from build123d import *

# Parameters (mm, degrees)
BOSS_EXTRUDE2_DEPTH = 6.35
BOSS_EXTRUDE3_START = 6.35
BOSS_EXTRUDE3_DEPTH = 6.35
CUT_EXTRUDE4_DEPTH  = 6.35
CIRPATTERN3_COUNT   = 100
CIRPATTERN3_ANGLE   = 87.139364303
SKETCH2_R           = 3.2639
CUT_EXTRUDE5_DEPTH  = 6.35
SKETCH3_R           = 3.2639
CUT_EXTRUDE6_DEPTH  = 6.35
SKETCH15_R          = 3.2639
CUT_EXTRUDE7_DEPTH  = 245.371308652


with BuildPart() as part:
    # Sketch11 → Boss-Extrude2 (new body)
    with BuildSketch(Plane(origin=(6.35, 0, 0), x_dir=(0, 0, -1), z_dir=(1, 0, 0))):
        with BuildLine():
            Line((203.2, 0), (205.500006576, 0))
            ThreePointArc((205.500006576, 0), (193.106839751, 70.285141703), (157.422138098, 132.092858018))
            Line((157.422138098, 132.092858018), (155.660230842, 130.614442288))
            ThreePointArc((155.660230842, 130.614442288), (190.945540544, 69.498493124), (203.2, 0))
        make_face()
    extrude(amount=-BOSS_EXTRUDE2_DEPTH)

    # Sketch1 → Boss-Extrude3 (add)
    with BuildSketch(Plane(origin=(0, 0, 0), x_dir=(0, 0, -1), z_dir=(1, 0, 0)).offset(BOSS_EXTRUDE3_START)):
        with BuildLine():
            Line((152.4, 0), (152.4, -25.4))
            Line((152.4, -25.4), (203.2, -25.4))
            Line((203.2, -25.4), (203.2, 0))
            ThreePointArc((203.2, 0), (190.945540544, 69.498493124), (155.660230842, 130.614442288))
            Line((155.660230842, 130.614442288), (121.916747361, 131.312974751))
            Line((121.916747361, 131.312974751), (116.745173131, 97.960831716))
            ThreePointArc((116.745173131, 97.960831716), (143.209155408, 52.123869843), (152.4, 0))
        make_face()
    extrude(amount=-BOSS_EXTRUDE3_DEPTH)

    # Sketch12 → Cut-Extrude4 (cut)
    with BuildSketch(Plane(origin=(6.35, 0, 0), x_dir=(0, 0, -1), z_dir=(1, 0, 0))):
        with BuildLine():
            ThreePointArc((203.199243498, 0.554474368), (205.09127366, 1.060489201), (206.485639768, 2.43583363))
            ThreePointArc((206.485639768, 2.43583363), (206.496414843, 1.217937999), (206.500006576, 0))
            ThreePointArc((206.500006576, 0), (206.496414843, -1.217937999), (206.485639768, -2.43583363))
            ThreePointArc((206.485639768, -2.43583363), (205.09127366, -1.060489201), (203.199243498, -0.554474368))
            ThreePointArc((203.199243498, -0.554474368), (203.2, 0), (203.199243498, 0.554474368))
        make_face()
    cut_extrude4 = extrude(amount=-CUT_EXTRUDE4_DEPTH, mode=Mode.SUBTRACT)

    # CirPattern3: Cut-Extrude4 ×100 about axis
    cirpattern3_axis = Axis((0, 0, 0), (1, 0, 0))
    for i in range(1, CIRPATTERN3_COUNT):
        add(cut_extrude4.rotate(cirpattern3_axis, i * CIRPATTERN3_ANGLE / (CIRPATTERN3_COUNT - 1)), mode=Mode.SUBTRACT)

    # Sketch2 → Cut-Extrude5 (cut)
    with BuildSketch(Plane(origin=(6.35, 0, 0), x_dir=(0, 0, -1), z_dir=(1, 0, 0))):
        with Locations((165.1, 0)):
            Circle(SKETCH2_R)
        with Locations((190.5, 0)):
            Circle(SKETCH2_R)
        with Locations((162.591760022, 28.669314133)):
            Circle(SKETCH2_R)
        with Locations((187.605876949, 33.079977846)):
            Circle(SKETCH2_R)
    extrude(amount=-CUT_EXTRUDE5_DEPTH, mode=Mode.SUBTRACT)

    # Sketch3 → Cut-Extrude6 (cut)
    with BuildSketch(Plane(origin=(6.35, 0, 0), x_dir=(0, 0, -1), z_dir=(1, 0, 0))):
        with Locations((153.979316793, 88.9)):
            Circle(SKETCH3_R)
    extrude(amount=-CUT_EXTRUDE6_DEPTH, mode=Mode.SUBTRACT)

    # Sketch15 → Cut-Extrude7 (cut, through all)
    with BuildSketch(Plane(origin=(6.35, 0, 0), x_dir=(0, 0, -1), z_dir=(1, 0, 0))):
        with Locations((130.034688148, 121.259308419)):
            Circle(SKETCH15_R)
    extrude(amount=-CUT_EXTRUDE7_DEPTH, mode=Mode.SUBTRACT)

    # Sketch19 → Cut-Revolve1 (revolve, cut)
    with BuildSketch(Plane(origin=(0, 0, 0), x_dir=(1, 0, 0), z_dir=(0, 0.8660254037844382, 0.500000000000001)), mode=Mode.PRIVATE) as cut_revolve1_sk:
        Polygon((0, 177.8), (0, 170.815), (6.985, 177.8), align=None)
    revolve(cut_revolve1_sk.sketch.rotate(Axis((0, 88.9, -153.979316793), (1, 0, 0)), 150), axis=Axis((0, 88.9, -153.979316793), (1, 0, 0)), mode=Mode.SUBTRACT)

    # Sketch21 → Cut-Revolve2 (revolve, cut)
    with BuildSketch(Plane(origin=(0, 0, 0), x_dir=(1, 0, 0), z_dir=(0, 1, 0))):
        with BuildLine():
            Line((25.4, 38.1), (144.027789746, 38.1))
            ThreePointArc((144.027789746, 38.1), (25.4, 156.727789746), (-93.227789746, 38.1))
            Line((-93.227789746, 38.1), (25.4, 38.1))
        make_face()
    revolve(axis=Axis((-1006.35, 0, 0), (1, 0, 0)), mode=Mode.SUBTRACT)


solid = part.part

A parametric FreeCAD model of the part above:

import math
import FreeCAD as App
import Part
import Sketcher
from FreeCAD import Vector
Q = App.Units.Quantity

doc = App.newDocument("Part")
body = doc.addObject("PartDesign::Body", "Body")

sketch1 = body.newObject("Sketcher::SketchObject", "Sketch")
sketch1.AttachmentSupport = (doc.getObject("YZ_Plane"), [""])
sketch1.MapMode = "FlatFace"
sketch1.AttachmentOffset = App.Placement(Vector(0, 0, 0.25 * 25.4), App.Rotation())
sketch1.addGeometry([
    Part.LineSegment(Vector(0, -203.2, 0), Vector(0, -205.5, 0)),
    Part.ArcOfCircle(Part.Circle(Vector(0, 0, 0), Vector(0, 0, 1), 205.5), math.radians(-90), math.radians(-50)),
    Part.LineSegment(Vector(132.1, -157.4, 0), Vector(130.6, -155.7, 0)),
    Part.ArcOfCircle(Part.Circle(Vector(0, 0, 0), Vector(0, 0, 1), 203.2), math.radians(-90), math.radians(-50)),
], False)
sketch1.addConstraint([
    Sketcher.Constraint("Coincident", 0, 2, 1, 1),
    Sketcher.Constraint("Coincident", 1, 2, 2, 1),
    Sketcher.Constraint("Coincident", 2, 2, 3, 2),
    Sketcher.Constraint("Coincident", 3, 1, 0, 1),
    Sketcher.Constraint("Vertical", 0),
    Sketcher.Constraint("Coincident", 1, 3, -1, 1),
    Sketcher.Constraint("Coincident", 3, 3, -1, 1),
    Sketcher.Constraint("PointOnObject", 0, 2, -2),
    Sketcher.Constraint("Radius", 3, Q("8 in")),
    Sketcher.Constraint("Angle", 2, Q("130 deg")),
    Sketcher.Constraint("Radius", 1, 205.500007),
    Sketcher.Constraint("DistanceX", -1, 1, 1, 2, 132.092858),
])
pad1 = body.newObject("PartDesign::Pad", "Pad")
pad1.Profile = sketch1
pad1.Length = Q("0.25 in")
pad1.Reversed = True

sketch2 = body.newObject("Sketcher::SketchObject", "Sketch001")
sketch2.AttachmentSupport = (doc.getObject("YZ_Plane"), [""])
sketch2.MapMode = "FlatFace"
sketch2.AttachmentOffset = App.Placement(Vector(0, 0, 0.25 * 25.4), App.Rotation())
sketch2.addGeometry([
    Part.LineSegment(Vector(0, -152, 0), Vector(-25, -152, 0)),
    Part.LineSegment(Vector(-25, -152, 0), Vector(-25, -203, 0)),
    Part.LineSegment(Vector(-25, -203, 0), Vector(0, -203, 0)),
    Part.ArcOfCircle(Part.Circle(Vector(0, 0, 0), Vector(0, 0, 1), 203), math.radians(-90), math.radians(-50)),
    Part.LineSegment(Vector(131, -156, 0), Vector(131, -122, 0)),
    Part.LineSegment(Vector(131, -122, 0), Vector(98, -117, 0)),
    Part.ArcOfCircle(Part.Circle(Vector(0, 0, 0), Vector(0, 0, 1), 152), math.radians(-90), math.radians(-50)),
], False)
sketch2.addConstraint([
    Sketcher.Constraint("Coincident", 0, 2, 1, 1),
    Sketcher.Constraint("Coincident", 1, 2, 2, 1),
    Sketcher.Constraint("Tangent", 2, 2, 3, 1),
    Sketcher.Constraint("Coincident", 3, 2, 4, 1),
    Sketcher.Constraint("Coincident", 4, 2, 5, 1),
    Sketcher.Constraint("Coincident", 5, 2, 6, 2),
    Sketcher.Constraint("Tangent", 6, 1, 0, 1),
    Sketcher.Constraint("Horizontal", 0),
    Sketcher.Constraint("Vertical", 1),
    Sketcher.Constraint("Horizontal", 2),
    Sketcher.Constraint("Coincident", 3, 3, -1, 1),
    Sketcher.Constraint("Coincident", 6, 3, -1, 1),
    Sketcher.Constraint("Equal", 4, 5),
    Sketcher.Constraint("Radius", 3, Q("8 in")),
    Sketcher.Constraint("Radius", 6, Q("6 in")),
    Sketcher.Constraint("DistanceX", 0, 2, 0, 1, Q("1 in")),
    Sketcher.Constraint("DistanceY", 3, 2, -1, 1, 155.660231),
    Sketcher.Constraint("DistanceX", -1, 1, 5, 2, 97.960832),
    Sketcher.Constraint("Distance", 4, 33.750713),
])
pad2 = body.newObject("PartDesign::Pad", "Pad001")
pad2.Profile = sketch2
pad2.Length = Q("0.25 in")
pad2.Reversed = True

sketch3 = body.newObject("Sketcher::SketchObject", "Sketch002")
sketch3.AttachmentSupport = (doc.getObject("YZ_Plane"), [""])
sketch3.MapMode = "FlatFace"
sketch3.AttachmentOffset = App.Placement(Vector(0, 0, 0.25 * 25.4), App.Rotation())
sketch3.addGeometry([
    Part.ArcOfCircle(Part.Circle(Vector(4.4, -203.2, 0), Vector(0, 0, 1), 3.8), math.radians(-180), math.radians(-121)),
    Part.ArcOfCircle(Part.Circle(Vector(0, 0, 0), Vector(0, 0, 1), 203.2), math.radians(-90.16), math.radians(-89.84)),
    Part.ArcOfCircle(Part.Circle(Vector(-4.4, -203.2, 0), Vector(0, 0, 1), 3.8), math.radians(-59), math.radians(0)),
    Part.ArcOfCircle(Part.Circle(Vector(0, 0, 0), Vector(0, 0, 1), 206.5), math.radians(-90.68), math.radians(-90)),
    Part.ArcOfCircle(Part.Circle(Vector(0, 0, 0), Vector(0, 0, 1), 206.5), math.radians(-90), math.radians(-89.32)),
], False)
sketch3.addConstraint([
    Sketcher.Constraint("Coincident", 0, 1, 1, 2),
    Sketcher.Constraint("Coincident", 1, 1, 2, 2),
    Sketcher.Constraint("Coincident", 2, 1, 3, 1),
    Sketcher.Constraint("Tangent", 3, 2, 4, 1),
    Sketcher.Constraint("Coincident", 4, 2, 0, 2),
    Sketcher.Constraint("Coincident", 3, 3, 1, 3),
    Sketcher.Constraint("Equal", 0, 2),
    Sketcher.Constraint("Equal", 3, 4),
    Sketcher.Constraint("Symmetric", 0, 3, 2, 3, -2),
    Sketcher.Constraint("PointOnObject", 1, 3, -2),
    Sketcher.Constraint("PointOnObject", 3, 2, -2),
    Sketcher.Constraint("Radius", 0, 3.829318),
    Sketcher.Constraint("Radius", 1, 203.19999),
    Sketcher.Constraint("Radius", 3, 206.499993),
    Sketcher.Constraint("DistanceX", -1, 1, 0, 3, 4.383778),
    Sketcher.Constraint("DistanceY", 2, 1, -1, 1, 206.48564),
    Sketcher.Constraint("DistanceY", 2, 3, 3, 3, 203.18878),
])
pocket1 = body.newObject("PartDesign::Pocket", "Pocket")
pocket1.Profile = sketch3
pocket1.Length = Q("0.25 in")
doc.recompute()

polarpattern = body.newObject("PartDesign::PolarPattern", "PolarPattern")
polarpattern.Originals = [pocket1]
polarpattern.Axis = (doc.getObject("X_Axis"), [""])
polarpattern.Angle = 87.139364
polarpattern.Occurrences = 100
body.Tip = polarpattern

sketch4 = body.newObject("Sketcher::SketchObject", "Sketch003")
sketch4.AttachmentSupport = (doc.getObject("YZ_Plane"), [""])
sketch4.MapMode = "FlatFace"
sketch4.AttachmentOffset = App.Placement(Vector(0, 0, 0.25 * 25.4), App.Rotation())
sketch4.addGeometry([
    Part.Circle(Vector(0, -165.1, 0), Vector(0, 0, 1), 3.3),
    Part.Circle(Vector(0, -190.5, 0), Vector(0, 0, 1), 3.3),
    Part.Circle(Vector(28.7, -162.6, 0), Vector(0, 0, 1), 3.3),
    Part.Circle(Vector(33.1, -187.6, 0), Vector(0, 0, 1), 3.3),
], False)
sketch4.addConstraint([
    Sketcher.Constraint("Equal", 0, 1),
    Sketcher.Constraint("Equal", 1, 2),
    Sketcher.Constraint("Equal", 2, 3),
    Sketcher.Constraint("PointOnObject", 0, 3, -2),
    Sketcher.Constraint("PointOnObject", 1, 3, -2),
    Sketcher.Constraint("Diameter", 0, Q("0.257 in")),
    Sketcher.Constraint("DistanceY", 1, 3, 0, 3, Q("1 in")),
    Sketcher.Constraint("DistanceY", 0, 3, -1, 1, Q("6.5 in")),
    Sketcher.Constraint("DistanceY", 2, 3, -1, 1, 162.59176),
    Sketcher.Constraint("DistanceX", -1, 1, 2, 3, 28.669314),
    Sketcher.Constraint("DistanceX", -1, 1, 3, 3, 33.079978),
    Sketcher.Constraint("DistanceY", 3, 3, -1, 1, 187.605877),
])
pocket2 = body.newObject("PartDesign::Pocket", "Pocket001")
pocket2.Profile = sketch4
pocket2.Length = Q("0.25 in")

sketch5 = body.newObject("Sketcher::SketchObject", "Sketch004")
sketch5.AttachmentSupport = (doc.getObject("YZ_Plane"), [""])
sketch5.MapMode = "FlatFace"
sketch5.AttachmentOffset = App.Placement(Vector(0, 0, 0.25 * 25.4), App.Rotation())
sketch5.addGeometry(Part.Circle(Vector(88.9, -154, 0), Vector(0, 0, 1), 3.3), False)
sketch5.addConstraint([
    Sketcher.Constraint("Diameter", 0, Q("0.257 in")),
    Sketcher.Constraint("DistanceX", -1, 1, 0, 3, Q("3.5 in")),
    Sketcher.Constraint("DistanceY", 0, 3, -1, 1, 153.979317),
])
pocket3 = body.newObject("PartDesign::Pocket", "Pocket002")
pocket3.Profile = sketch5
pocket3.Length = Q("0.25 in")

sketch6 = body.newObject("Sketcher::SketchObject", "Sketch005")
sketch6.AttachmentSupport = (doc.getObject("YZ_Plane"), [""])
sketch6.MapMode = "FlatFace"
sketch6.AttachmentOffset = App.Placement(Vector(0, 0, 0.25 * 25.4), App.Rotation())
sketch6.addGeometry(Part.Circle(Vector(121.3, -130, 0), Vector(0, 0, 1), 3.3), False)
sketch6.addConstraint([
    Sketcher.Constraint("Diameter", 0, Q("0.257 in")),
    Sketcher.Constraint("DistanceX", -1, 1, 0, 3, 121.259308),
    Sketcher.Constraint("DistanceY", 0, 3, -1, 1, 130.034688),
])
pocket4 = body.newObject("PartDesign::Pocket", "Pocket003")
pocket4.Profile = sketch6
pocket4.Type = "ThroughAll"

sketch7 = body.newObject("Sketcher::SketchObject", "Sketch006")
sketch7.Placement = App.Placement(Vector(0, 0, 0), App.Rotation(Vector(1, 0, 0), Vector(0, 0.5, -0.866025404), Vector(0, 0.866025404, 0.5), "ZXY"))
sketch7.addGeometry([
    Part.LineSegment(Vector(0, 178, 0), Vector(0, 171, 0)),
    Part.LineSegment(Vector(0, 171, 0), Vector(7, 178, 0)),
    Part.LineSegment(Vector(7, 178, 0), Vector(0, 178, 0)),
], False)
sketch7.addGeometry(Part.LineSegment(Vector(0, 178, 0), Vector(7, 178, 0)), True)
sketch7.addConstraint([
    Sketcher.Constraint("Coincident", 0, 2, 1, 1),
    Sketcher.Constraint("Coincident", 1, 2, 2, 1),
    Sketcher.Constraint("Coincident", 2, 2, 0, 1),
    Sketcher.Constraint("Vertical", 0),
    Sketcher.Constraint("Horizontal", 2),
    Sketcher.Constraint("Horizontal", 3),
    Sketcher.Constraint("Coincident", 3, 1, 2, 2),
    Sketcher.Constraint("PointOnObject", 0, 2, -2),
    Sketcher.Constraint("Equal", 2, 3),
    Sketcher.Constraint("Equal", 3, 0),
    Sketcher.Constraint("DistanceY", -1, 1, 1, 2, Q("7 in")),
    Sketcher.Constraint("DistanceX", 2, 2, 2, 1, Q("0.275 in")),
])
groove = body.newObject("PartDesign::Groove", "Groove")
groove.Profile = sketch7
groove.ReferenceAxis = (sketch7, ["Axis0"])
groove.Angle = 360

sketch8 = body.newObject("Sketcher::SketchObject", "Sketch007")
sketch8.AttachmentSupport = (doc.getObject("XZ_Plane"), [""])
sketch8.MapMode = "FlatFace"
sketch8.addGeometry([
    Part.ArcOfCircle(Part.Circle(Vector(25, -38, 0), Vector(0, 0, 1), 119), math.radians(180), math.radians(360)),
    Part.LineSegment(Vector(-93, -38, 0), Vector(144, -38, 0)),
], False)
sketch8.addConstraint([
    Sketcher.Constraint("Coincident", 0, 1, 1, 1),
    Sketcher.Constraint("Coincident", 1, 2, 0, 2),
    Sketcher.Constraint("Horizontal", 1),
    Sketcher.Constraint("DistanceX", -1, 1, 0, 3, Q("1 in")),
    Sketcher.Constraint("DistanceY", 0, 3, -1, 1, Q("1.5 in")),
    Sketcher.Constraint("DistanceY", 0, 1, -1, 1, Q("1.5 in")),
    Sketcher.Constraint("Radius", 0, 118.62779),
])
groove2 = body.newObject("PartDesign::Groove", "Groove001")
groove2.Profile = sketch8
groove2.ReferenceAxis = (sketch8, ["H_Axis"])
groove2.Angle = 360

doc.recompute()
